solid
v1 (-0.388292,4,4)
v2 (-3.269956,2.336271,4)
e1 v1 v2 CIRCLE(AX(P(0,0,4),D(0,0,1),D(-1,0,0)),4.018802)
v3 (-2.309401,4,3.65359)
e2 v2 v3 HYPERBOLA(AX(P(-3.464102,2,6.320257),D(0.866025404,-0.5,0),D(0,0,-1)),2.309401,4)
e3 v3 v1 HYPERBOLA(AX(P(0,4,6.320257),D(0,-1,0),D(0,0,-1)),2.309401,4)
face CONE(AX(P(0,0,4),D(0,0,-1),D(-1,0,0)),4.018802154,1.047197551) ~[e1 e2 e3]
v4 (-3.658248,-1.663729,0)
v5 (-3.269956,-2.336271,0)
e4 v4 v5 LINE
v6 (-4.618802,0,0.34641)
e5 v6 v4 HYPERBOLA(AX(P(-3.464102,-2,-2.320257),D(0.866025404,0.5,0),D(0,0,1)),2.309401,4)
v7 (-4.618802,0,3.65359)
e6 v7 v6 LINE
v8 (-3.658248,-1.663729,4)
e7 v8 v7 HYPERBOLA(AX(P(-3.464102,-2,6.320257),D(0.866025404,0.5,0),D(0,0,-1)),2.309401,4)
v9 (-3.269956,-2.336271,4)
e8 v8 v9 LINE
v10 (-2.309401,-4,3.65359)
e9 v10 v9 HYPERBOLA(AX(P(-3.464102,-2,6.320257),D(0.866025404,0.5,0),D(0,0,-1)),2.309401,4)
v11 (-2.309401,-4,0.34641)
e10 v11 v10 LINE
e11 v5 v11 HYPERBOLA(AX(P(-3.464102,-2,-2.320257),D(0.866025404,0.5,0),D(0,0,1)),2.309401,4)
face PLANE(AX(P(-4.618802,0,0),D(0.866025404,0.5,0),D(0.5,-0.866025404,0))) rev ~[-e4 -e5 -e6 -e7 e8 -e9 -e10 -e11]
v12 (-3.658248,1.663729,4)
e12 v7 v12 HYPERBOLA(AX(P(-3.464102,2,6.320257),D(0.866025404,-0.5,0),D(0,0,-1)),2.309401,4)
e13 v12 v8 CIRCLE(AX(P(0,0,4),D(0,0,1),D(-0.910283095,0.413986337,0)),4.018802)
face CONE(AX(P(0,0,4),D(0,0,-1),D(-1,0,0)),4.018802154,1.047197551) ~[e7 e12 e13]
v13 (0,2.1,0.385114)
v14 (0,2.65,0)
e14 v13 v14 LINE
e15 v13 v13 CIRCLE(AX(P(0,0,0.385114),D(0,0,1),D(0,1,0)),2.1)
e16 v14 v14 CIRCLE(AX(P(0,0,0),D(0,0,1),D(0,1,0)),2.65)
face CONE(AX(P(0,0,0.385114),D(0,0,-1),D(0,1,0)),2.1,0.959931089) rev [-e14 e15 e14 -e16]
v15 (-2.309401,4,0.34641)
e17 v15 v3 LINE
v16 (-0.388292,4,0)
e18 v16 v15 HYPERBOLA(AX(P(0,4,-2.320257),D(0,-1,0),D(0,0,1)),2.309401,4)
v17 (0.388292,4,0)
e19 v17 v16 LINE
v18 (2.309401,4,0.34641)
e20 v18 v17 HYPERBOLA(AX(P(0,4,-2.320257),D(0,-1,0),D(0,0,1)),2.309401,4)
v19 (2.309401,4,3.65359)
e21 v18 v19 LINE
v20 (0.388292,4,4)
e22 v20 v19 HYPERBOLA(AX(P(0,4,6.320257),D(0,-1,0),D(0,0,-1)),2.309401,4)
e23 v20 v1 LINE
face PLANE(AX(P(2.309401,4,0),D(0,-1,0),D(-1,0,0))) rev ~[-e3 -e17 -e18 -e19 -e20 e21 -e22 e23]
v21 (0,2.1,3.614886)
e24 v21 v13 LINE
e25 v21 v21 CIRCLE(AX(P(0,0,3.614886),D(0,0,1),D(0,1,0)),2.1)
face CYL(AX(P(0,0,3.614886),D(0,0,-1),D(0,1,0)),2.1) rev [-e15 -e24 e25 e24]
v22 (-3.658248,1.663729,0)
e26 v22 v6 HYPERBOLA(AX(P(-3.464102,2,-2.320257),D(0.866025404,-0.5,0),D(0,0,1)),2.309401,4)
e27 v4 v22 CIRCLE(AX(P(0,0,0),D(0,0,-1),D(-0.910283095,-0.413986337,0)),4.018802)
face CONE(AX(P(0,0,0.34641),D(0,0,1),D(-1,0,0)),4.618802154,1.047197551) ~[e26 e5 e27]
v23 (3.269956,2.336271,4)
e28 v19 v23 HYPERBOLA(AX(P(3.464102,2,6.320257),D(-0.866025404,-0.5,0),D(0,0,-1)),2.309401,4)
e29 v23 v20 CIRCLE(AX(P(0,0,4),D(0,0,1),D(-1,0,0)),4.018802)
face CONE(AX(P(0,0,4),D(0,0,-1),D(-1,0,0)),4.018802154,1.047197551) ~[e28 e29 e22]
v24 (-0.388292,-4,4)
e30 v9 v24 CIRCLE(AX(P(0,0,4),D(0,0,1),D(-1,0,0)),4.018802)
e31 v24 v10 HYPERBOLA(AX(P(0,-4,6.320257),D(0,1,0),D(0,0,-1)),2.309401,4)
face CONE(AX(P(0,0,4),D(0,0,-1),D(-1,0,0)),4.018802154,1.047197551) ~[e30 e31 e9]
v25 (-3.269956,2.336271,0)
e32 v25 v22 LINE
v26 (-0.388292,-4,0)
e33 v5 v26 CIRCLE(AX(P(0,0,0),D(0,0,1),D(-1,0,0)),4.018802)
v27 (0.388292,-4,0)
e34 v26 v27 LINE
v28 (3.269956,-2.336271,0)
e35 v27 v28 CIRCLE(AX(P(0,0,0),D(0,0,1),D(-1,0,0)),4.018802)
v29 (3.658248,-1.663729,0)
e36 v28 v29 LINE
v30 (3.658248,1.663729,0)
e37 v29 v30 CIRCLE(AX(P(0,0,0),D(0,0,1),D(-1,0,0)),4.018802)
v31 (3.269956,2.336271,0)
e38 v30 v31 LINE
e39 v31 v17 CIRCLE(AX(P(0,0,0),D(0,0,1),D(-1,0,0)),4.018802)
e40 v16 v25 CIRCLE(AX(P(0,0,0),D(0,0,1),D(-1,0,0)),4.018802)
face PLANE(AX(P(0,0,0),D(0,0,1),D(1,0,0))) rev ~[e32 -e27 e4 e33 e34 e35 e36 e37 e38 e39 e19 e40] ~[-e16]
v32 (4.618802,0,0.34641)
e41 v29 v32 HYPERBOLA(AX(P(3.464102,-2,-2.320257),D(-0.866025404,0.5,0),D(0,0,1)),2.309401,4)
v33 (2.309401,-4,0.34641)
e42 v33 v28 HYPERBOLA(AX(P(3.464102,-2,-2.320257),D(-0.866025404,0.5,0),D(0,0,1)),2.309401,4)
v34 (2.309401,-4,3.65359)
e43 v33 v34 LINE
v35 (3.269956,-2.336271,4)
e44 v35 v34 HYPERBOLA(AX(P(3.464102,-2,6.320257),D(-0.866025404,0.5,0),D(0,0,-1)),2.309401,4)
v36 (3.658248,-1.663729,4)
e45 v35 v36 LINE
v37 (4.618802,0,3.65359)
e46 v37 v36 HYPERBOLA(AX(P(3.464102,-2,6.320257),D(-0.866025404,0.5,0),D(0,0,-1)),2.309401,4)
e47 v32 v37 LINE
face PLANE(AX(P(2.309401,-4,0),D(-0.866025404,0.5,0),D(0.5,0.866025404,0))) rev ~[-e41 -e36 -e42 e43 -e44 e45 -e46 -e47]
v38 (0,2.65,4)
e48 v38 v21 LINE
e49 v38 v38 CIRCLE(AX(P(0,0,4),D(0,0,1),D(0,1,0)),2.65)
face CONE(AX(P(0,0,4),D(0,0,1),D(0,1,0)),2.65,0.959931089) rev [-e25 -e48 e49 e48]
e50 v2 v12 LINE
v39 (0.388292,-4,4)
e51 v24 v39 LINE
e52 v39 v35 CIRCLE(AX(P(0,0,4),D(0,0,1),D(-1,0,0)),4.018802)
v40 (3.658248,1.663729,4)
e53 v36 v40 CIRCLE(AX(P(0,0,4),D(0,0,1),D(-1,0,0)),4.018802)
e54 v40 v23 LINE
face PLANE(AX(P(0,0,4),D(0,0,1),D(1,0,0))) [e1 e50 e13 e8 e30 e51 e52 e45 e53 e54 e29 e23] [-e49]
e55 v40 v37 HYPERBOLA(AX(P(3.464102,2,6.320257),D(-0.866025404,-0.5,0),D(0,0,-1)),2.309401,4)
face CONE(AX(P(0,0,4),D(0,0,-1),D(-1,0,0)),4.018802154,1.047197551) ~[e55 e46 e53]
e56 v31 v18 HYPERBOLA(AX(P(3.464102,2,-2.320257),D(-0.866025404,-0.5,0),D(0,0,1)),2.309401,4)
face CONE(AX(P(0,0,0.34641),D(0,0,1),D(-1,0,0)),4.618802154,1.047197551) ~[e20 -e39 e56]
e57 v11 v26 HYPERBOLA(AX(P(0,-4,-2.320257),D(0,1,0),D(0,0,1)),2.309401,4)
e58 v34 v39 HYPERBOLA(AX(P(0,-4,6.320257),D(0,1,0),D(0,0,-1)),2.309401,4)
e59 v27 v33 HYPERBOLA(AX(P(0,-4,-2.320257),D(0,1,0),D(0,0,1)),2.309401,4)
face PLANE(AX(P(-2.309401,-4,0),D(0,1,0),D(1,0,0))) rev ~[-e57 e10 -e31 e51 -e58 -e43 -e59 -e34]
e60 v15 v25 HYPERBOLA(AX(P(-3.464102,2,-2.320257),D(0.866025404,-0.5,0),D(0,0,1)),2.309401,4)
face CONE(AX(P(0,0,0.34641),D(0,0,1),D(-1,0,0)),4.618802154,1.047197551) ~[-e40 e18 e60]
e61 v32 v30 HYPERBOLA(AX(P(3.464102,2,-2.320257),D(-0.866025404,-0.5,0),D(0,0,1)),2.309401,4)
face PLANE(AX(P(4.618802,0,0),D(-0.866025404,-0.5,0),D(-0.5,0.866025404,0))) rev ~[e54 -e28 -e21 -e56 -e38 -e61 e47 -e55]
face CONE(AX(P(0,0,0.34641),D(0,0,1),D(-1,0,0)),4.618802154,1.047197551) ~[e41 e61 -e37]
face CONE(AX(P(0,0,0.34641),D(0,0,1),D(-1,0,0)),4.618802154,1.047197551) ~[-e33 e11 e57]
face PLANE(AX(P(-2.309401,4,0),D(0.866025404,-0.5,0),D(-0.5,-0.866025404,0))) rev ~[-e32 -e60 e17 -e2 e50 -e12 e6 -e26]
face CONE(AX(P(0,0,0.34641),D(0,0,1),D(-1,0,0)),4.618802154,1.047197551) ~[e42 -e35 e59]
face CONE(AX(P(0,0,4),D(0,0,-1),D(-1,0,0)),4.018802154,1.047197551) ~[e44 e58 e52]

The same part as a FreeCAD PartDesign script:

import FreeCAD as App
import Part
import Sketcher
Q = App.Units.Quantity

doc = App.newDocument("Part")
params = doc.addObject("Spreadsheet::Sheet", "Params")
for row, (alias, value) in enumerate([
    ("pad1_length", "4 mm"),
    ("groove_angle", "360 deg"),
    ("sketch3_height", "4 mm"),
    ("sketch3_width", "2.65 mm"),
    ("groove2_angle", "360 deg"),
], start=1):
    params.set(f"A{row}", alias)
    params.set(f"B{row}", "=" + value)
    params.setAlias(f"B{row}", alias)

body = doc.addObject("PartDesign::Body", "Body")

# Sketch on XY plane
sketch1 = body.newObject("Sketcher::SketchObject", "Sketch")
sketch1.AttachmentSupport = (doc.getObject("XY_Plane"), [""])
sketch1.MapMode = "FlatFace"
sketch1.addGeometry(Part.LineSegment(App.Vector(4.618802, 0, 0), App.Vector(2.309401, 4, 0)), False)
sketch1.addGeometry(Part.LineSegment(App.Vector(2.309401, 4, 0), App.Vector(-2.309401, 4, 0)), False)
sketch1.addGeometry(Part.LineSegment(App.Vector(-2.309401, 4, 0), App.Vector(-4.618802, 0, 0)), False)
sketch1.addGeometry(Part.LineSegment(App.Vector(-4.618802, 0, 0), App.Vector(-2.309401, -4, 0)), False)
sketch1.addGeometry(Part.LineSegment(App.Vector(-2.309401, -4, 0), App.Vector(2.309401, -4, 0)), False)
sketch1.addGeometry(Part.LineSegment(App.Vector(2.309401, -4, 0), App.Vector(4.618802, 0, 0)), False)
sketch1.addConstraint(Sketcher.Constraint("Coincident", 0, 2, 1, 1))
sketch1.addConstraint(Sketcher.Constraint("Coincident", 1, 2, 2, 1))
sketch1.addConstraint(Sketcher.Constraint("Coincident", 2, 2, 3, 1))
sketch1.addConstraint(Sketcher.Constraint("Coincident", 3, 2, 4, 1))
sketch1.addConstraint(Sketcher.Constraint("Coincident", 4, 2, 5, 1))
sketch1.addConstraint(Sketcher.Constraint("Coincident", 5, 2, 0, 1))
sketch1.addConstraint(Sketcher.Constraint("Horizontal", 1))
sketch1.addConstraint(Sketcher.Constraint("Horizontal", 4))
sketch1.addConstraint(Sketcher.Constraint("Symmetric", 0, 2, 3, 2, -1, 1))
sketch1.addConstraint(Sketcher.Constraint("Symmetric", 2, 2, 5, 2, -1, 1))
sketch1.addConstraint(Sketcher.Constraint("PointOnObject", 2, 2, -1))
sketch1.addConstraint(Sketcher.Constraint("Parallel", 2, 5))
sketch1.addConstraint(Sketcher.Constraint("Vertical", 1, 2, 3, 2))
sketch1.addConstraint(Sketcher.Constraint("Angle", 0, Q("120 deg")))
sketch1.addConstraint(Sketcher.Constraint("DistanceY", -1, 1, 0, 2, 4.0))
sketch1.addConstraint(Sketcher.Constraint("DistanceX", -1, 1, 0, 2, 2.309401))
pad1 = body.newObject("PartDesign::Pad", "Pad")
pad1.Profile = sketch1
pad1.setExpression("Length", "Params.pad1_length")

# Sketch on XZ plane
sketch2 = body.newObject("Sketcher::SketchObject", "Sketch001")
sketch2.AttachmentSupport = (doc.getObject("XZ_Plane"), [""])
sketch2.MapMode = "FlatFace"
sketch2.addGeometry(Part.LineSegment(App.Vector(-4.018802, 0, 0), App.Vector(-4.018802, -0.812803, 0)), False)
sketch2.addGeometry(Part.LineSegment(App.Vector(-4.018802, -0.812803, 0), App.Vector(-5.016585, -0.812803, 0)), False)
sketch2.addGeometry(Part.LineSegment(App.Vector(-5.016585, -0.812803, 0), App.Vector(-5.016585, 4.215004, 0)), False)
sketch2.addGeometry(Part.LineSegment(App.Vector(-5.016585, 4.215004, 0), App.Vector(-4.018802, 4.215004, 0)), False)
sketch2.addGeometry(Part.LineSegment(App.Vector(-4.018802, 4.215004, 0), App.Vector(-4.018802, 4, 0)), False)
sketch2.addGeometry(Part.LineSegment(App.Vector(-4.018802, 4, 0), App.Vector(-4.618802, 3.65359, 0)), False)
sketch2.addGeometry(Part.LineSegment(App.Vector(-4.618802, 3.65359, 0), App.Vector(-4.618802, 0.34641, 0)), False)
sketch2.addGeometry(Part.LineSegment(App.Vector(-4.618802, 0.34641, 0), App.Vector(-4.018802, 0, 0)), False)
sketch2.addConstraint(Sketcher.Constraint("Coincident", 0, 2, 1, 1))
sketch2.addConstraint(Sketcher.Constraint("Coincident", 1, 2, 2, 1))
sketch2.addConstraint(Sketcher.Constraint("Coincident", 2, 2, 3, 1))
sketch2.addConstraint(Sketcher.Constraint("Coincident", 3, 2, 4, 1))
sketch2.addConstraint(Sketcher.Constraint("Coincident", 4, 2, 5, 1))
sketch2.addConstraint(Sketcher.Constraint("Coincident", 5, 2, 6, 1))
sketch2.addConstraint(Sketcher.Constraint("Coincident", 6, 2, 7, 1))
sketch2.addConstraint(Sketcher.Constraint("Coincident", 7, 2, 0, 1))
sketch2.addConstraint(Sketcher.Constraint("Vertical", 0))
sketch2.addConstraint(Sketcher.Constraint("Horizontal", 1))
sketch2.addConstraint(Sketcher.Constraint("Vertical", 2))
sketch2.addConstraint(Sketcher.Constraint("Horizontal", 3))
sketch2.addConstraint(Sketcher.Constraint("Vertical", 4))
sketch2.addConstraint(Sketcher.Constraint("Vertical", 6))
sketch2.addConstraint(Sketcher.Constraint("PointOnObject", 7, 2, -1))
sketch2.addConstraint(Sketcher.Constraint("Vertical", 0, 2, 3, 2))
sketch2.addConstraint(Sketcher.Constraint("Equal", 5, 7))
sketch2.addConstraint(Sketcher.Constraint("Angle", 5, Q("-150 deg")))
sketch2.addConstraint(Sketcher.Constraint("DistanceY", -1, 1, 4, 2, 4.0))
sketch2.addConstraint(Sketcher.Constraint("DistanceX", 5, 2, 4, 2, 0.6))
sketch2.addConstraint(Sketcher.Constraint("DistanceX", 1, 2, 1, 1, 0.997783))
sketch2.addConstraint(Sketcher.Constraint("DistanceY", 0, 2, 0, 1, 0.812803))
sketch2.addConstraint(Sketcher.Constraint("DistanceY", 2, 1, 2, 2, 5.027807))
sketch2.addConstraint(Sketcher.Constraint("DistanceX", 0, 2, -1, 1, 4.018802))
groove = body.newObject("PartDesign::Groove", "Groove")
groove.Profile = sketch2
groove.ReferenceAxis = (sketch2, ["V_Axis"])
groove.setExpression("Angle", "Params.groove_angle")

# Sketch on YZ plane
sketch3 = body.newObject("Sketcher::SketchObject", "Sketch002")
sketch3.AttachmentSupport = (doc.getObject("YZ_Plane"), [""])
sketch3.MapMode = "FlatFace"
sketch3.addGeometry(Part.LineSegment(App.Vector(0, 4, 0), App.Vector(0, 0, 0)), False)
sketch3.addGeometry(Part.LineSegment(App.Vector(0, 0, 0), App.Vector(2.65, 0, 0)), False)
sketch3.addGeometry(Part.LineSegment(App.Vector(2.65, 0, 0), App.Vector(2.1, 0.385114, 0)), False)
sketch3.addGeometry(Part.LineSegment(App.Vector(2.1, 0.385114, 0), App.Vector(2.1, 3.614886, 0)), False)
sketch3.addGeometry(Part.LineSegment(App.Vector(2.1, 3.614886, 0), App.Vector(2.65, 4, 0)), False)
sketch3.addGeometry(Part.LineSegment(App.Vector(2.65, 4, 0), App.Vector(0, 4, 0)), False)
sketch3.addConstraint(Sketcher.Constraint("Coincident", 0, 2, 1, 1))
sketch3.addConstraint(Sketcher.Constraint("Coincident", 1, 2, 2, 1))
sketch3.addConstraint(Sketcher.Constraint("Coincident", 2, 2, 3, 1))
sketch3.addConstraint(Sketcher.Constraint("Coincident", 3, 2, 4, 1))
sketch3.addConstraint(Sketcher.Constraint("Coincident", 4, 2, 5, 1))
sketch3.addConstraint(Sketcher.Constraint("Coincident", 5, 2, 0, 1))
sketch3.addConstraint(Sketcher.Constraint("Vertical", 0))
sketch3.addConstraint(Sketcher.Constraint("Horizontal", 1))
sketch3.addConstraint(Sketcher.Constraint("Vertical", 3))
sketch3.addConstraint(Sketcher.Constraint("Horizontal", 5))
sketch3.addConstraint(Sketcher.Constraint("Coincident", 0, 2, -1, 1))
sketch3.addConstraint(Sketcher.Constraint("Vertical", 1, 2, 4, 2))
sketch3.addConstraint(Sketcher.Constraint("Equal", 2, 4))
sketch3.addConstraint(Sketcher.Constraint("DistanceY", 0, 2, 0, 1, 4.0))
sketch3.addConstraint(Sketcher.Constraint("Angle", 2, Q("145 deg")))
sketch3.addConstraint(Sketcher.Constraint("DistanceX", 1, 1, 1, 2, 2.65))
sketch3.addConstraint(Sketcher.Constraint("DistanceX", -1, 1, 2, 2, 2.1))
sketch3.setExpression("Constraints[13]", "Params.sketch3_height")
sketch3.setExpression("Constraints[15]", "Params.sketch3_width")
groove2 = body.newObject("PartDesign::Groove", "Groove001")
groove2.Profile = sketch3
groove2.ReferenceAxis = (sketch3, ["V_Axis"])
groove2.setExpression("Angle", "Params.groove2_angle")

doc.recompute()
